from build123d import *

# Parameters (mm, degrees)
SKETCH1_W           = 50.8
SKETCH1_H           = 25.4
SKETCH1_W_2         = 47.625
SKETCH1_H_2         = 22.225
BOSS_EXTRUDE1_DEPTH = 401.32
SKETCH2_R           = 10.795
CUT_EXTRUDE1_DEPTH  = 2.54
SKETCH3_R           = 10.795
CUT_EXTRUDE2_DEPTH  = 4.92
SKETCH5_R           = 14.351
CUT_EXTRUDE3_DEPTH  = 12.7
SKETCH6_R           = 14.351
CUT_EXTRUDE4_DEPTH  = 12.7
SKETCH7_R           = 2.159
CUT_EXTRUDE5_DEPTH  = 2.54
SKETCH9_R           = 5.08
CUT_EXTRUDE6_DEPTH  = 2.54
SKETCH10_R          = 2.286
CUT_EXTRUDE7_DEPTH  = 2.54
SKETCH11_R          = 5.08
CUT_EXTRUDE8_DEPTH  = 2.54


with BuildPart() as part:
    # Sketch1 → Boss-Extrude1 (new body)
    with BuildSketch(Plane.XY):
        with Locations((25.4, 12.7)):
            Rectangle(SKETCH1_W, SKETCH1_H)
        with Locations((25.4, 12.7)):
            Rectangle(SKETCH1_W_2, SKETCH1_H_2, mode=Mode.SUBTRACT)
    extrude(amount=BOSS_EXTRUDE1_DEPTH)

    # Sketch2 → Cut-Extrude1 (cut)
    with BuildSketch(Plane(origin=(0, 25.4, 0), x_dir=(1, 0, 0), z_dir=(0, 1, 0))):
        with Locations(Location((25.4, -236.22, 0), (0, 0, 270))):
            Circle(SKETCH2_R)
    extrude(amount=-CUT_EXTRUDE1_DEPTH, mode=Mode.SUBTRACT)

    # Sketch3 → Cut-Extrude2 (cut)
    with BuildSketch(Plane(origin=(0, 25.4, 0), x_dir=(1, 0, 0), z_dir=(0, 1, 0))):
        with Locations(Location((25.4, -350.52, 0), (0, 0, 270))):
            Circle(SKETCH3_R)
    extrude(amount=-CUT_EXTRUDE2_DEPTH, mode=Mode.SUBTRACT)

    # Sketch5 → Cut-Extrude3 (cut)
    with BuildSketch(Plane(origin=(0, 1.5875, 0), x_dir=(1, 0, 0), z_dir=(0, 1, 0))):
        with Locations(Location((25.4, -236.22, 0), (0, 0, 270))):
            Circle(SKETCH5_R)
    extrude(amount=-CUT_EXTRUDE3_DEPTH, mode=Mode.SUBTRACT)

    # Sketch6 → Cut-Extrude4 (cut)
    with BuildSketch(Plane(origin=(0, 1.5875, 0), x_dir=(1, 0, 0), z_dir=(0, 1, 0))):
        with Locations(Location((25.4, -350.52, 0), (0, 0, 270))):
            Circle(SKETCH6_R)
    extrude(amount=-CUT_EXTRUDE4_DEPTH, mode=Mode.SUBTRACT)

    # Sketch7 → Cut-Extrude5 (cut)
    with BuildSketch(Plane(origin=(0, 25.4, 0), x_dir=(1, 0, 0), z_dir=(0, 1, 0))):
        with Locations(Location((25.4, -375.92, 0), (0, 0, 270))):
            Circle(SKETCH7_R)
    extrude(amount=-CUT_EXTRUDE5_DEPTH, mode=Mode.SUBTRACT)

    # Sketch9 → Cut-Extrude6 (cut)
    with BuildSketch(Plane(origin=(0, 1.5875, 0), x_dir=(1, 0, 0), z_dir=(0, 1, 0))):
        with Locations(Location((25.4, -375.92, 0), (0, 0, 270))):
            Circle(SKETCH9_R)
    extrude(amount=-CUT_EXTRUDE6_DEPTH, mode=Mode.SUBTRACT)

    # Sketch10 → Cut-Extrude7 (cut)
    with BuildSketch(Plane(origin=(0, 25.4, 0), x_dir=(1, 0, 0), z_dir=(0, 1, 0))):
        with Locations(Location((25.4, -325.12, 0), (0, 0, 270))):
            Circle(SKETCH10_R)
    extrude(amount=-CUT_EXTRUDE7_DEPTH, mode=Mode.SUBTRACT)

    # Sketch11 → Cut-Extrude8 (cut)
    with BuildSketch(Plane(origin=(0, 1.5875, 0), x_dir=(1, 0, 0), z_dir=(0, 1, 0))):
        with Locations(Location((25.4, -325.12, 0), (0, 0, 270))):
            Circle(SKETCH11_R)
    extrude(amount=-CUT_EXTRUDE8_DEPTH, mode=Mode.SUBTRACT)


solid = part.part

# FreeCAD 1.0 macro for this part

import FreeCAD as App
import Part
import Sketcher
Q = App.Units.Quantity


def add_polygon(sketch, points):
    """Adds a closed chain of lines whose ends are joined by coincident constraints."""
    first, n = sketch.GeometryCount, len(points)
    for a, b in zip(points, points[1:] + points[:1]):
        sketch.addGeometry(Part.LineSegment(App.Vector(*a, 0), App.Vector(*b, 0)), False)
    for i in range(n):
        sketch.addConstraint(Sketcher.Constraint("Coincident", first + i, 2, first + (i + 1) % n, 1))

doc = App.newDocument("Part")
params = doc.addObject("Spreadsheet::Sheet", "Params")
for row, (alias, value) in enumerate([
    ("sketch1_width", "2 in"),
    ("sketch1_height", "1 in"),
    ("sketch1_width2", "1.875 in"),
    ("sketch1_height2", "0.875 in"),
    ("pad1_length", "15.8 in"),
    ("sketch2_diameter", "0.85 in"),
    ("pocket1_length", "0.1 in"),
    ("sketch3_diameter", "0.85 in"),
    ("pocket2_length", "4.92 mm"),
    ("sketch4_diameter", "1.13 in"),
    ("pocket3_length", "0.5 in"),
    ("sketch5_diameter", "1.13 in"),
    ("pocket4_length", "0.5 in"),
    ("sketch6_diameter", "0.17 in"),
    ("pocket5_length", "0.1 in"),
    ("sketch7_diameter", "0.4 in"),
    ("pocket6_length", "0.1 in"),
    ("sketch8_diameter", "0.18 in"),
    ("pocket7_length", "0.1 in"),
    ("sketch9_diameter", "0.4 in"),
    ("pocket8_length", "0.1 in"),
], start=1):
    params.set(f"A{row}", alias)
    params.set(f"B{row}", "=" + value)
    params.setAlias(f"B{row}", alias)

body = doc.addObject("PartDesign::Body", "Body")

# Sketch on XY plane
sketch1 = body.newObject("Sketcher::SketchObject", "Sketch")
sketch1.AttachmentSupport = (doc.getObject("XY_Plane"), [""])
sketch1.MapMode = "FlatFace"
add_polygon(sketch1, [(0, 25), (0, 0), (51, 0), (51, 25)])  # lines 0-3
add_polygon(sketch1, [(49, 2), (2, 2), (2, 24), (49, 24)])  # lines 4-7
sketch1.addConstraint([
    Sketcher.Constraint("Vertical", 0),
    Sketcher.Constraint("Horizontal", 1),
    Sketcher.Constraint("Vertical", 2),
    Sketcher.Constraint("Horizontal", 3),
    Sketcher.Constraint("Horizontal", 4),
    Sketcher.Constraint("Vertical", 5),
    Sketcher.Constraint("Horizontal", 6),
    Sketcher.Constraint("Vertical", 7),
    Sketcher.Constraint("Coincident", 0, 2, -1, 1),
    Sketcher.Constraint("DistanceX", 1, 1, 1, 2, Q("2 in")),
    Sketcher.Constraint("DistanceY", 0, 2, 0, 1, Q("1 in")),
    Sketcher.Constraint("DistanceX", 4, 2, 4, 1, Q("1.875 in")),
    Sketcher.Constraint("DistanceY", 5, 1, 5, 2, Q("0.875 in")),
    Sketcher.Constraint("DistanceX", -1, 1, 4, 2, Q("0.0625 in")),
    Sketcher.Constraint("DistanceY", -1, 1, 4, 2, Q("0.0625 in")),
])
sketch1.setExpression("Constraints[17]", "Params.sketch1_width")
sketch1.setExpression("Constraints[18]", "Params.sketch1_height")
sketch1.setExpression("Constraints[19]", "Params.sketch1_width2")
sketch1.setExpression("Constraints[20]", "Params.sketch1_height2")
pad1 = body.newObject("PartDesign::Pad", "Pad")
pad1.Profile = sketch1
pad1.setExpression("Length", "Params.pad1_length")

# Sketch on XZ plane
sketch2 = body.newObject("Sketcher::SketchObject", "Sketch001")
sketch2.AttachmentSupport = (doc.getObject("XZ_Plane"), [""])
sketch2.MapMode = "FlatFace"
sketch2.AttachmentOffset = App.Placement(App.Vector(0, 0, -1 * 25.4), App.Rotation())
sketch2.addGeometry(Part.Circle(App.Vector(25, 236, 0), App.Vector(0, 0, 1), 11), False)
sketch2.addConstraint([
    Sketcher.Constraint("Diameter", 0, Q("0.85 in")),
    Sketcher.Constraint("DistanceX", -1, 1, 0, 3, Q("1 in")),
    Sketcher.Constraint("DistanceY", -1, 1, 0, 3, Q("9.3 in")),
])
sketch2.setExpression("Constraints[0]", "Params.sketch2_diameter")
pocket1 = body.newObject("PartDesign::Pocket", "Pocket")
pocket1.Profile = sketch2
pocket1.setExpression("Length", "Params.pocket1_length")
pocket1.Reversed = True

# Sketch on XZ plane
sketch3 = body.newObject("Sketcher::SketchObject", "Sketch002")
sketch3.AttachmentSupport = (doc.getObject("XZ_Plane"), [""])
sketch3.MapMode = "FlatFace"
sketch3.AttachmentOffset = App.Placement(App.Vector(0, 0, -1 * 25.4), App.Rotation())
sketch3.addGeometry(Part.Circle(App.Vector(25, 351, 0), App.Vector(0, 0, 1), 11), False)
sketch3.addConstraint([
    Sketcher.Constraint("Diameter", 0, Q("0.85 in")),
    Sketcher.Constraint("DistanceX", -1, 1, 0, 3, Q("1 in")),
    Sketcher.Constraint("DistanceY", -1, 1, 0, 3, Q("13.8 in")),
])
sketch3.setExpression("Constraints[0]", "Params.sketch3_diameter")
pocket2 = body.newObject("PartDesign::Pocket", "Pocket001")
pocket2.Profile = sketch3
pocket2.setExpression("Length", "Params.pocket2_length")
pocket2.Reversed = True

# Sketch on XZ plane
sketch4 = body.newObject("Sketcher::SketchObject", "Sketch003")
sketch4.AttachmentSupport = (doc.getObject("XZ_Plane"), [""])
sketch4.MapMode = "FlatFace"
sketch4.AttachmentOffset = App.Placement(App.Vector(0, 0, -0.0625 * 25.4), App.Rotation())
sketch4.addGeometry(Part.Circle(App.Vector(25, 236, 0), App.Vector(0, 0, 1), 14), False)
sketch4.addConstraint([
    Sketcher.Constraint("Diameter", 0, Q("1.13 in")),
    Sketcher.Constraint("DistanceX", -1, 1, 0, 3, Q("1 in")),
    Sketcher.Constraint("DistanceY", -1, 1, 0, 3, Q("9.3 in")),
])
sketch4.setExpression("Constraints[0]", "Params.sketch4_diameter")
pocket3 = body.newObject("PartDesign::Pocket", "Pocket002")
pocket3.Profile = sketch4
pocket3.setExpression("Length", "Params.pocket3_length")
pocket3.Reversed = True

# Sketch on XZ plane
sketch5 = body.newObject("Sketcher::SketchObject", "Sketch004")
sketch5.AttachmentSupport = (doc.getObject("XZ_Plane"), [""])
sketch5.MapMode = "FlatFace"
sketch5.AttachmentOffset = App.Placement(App.Vector(0, 0, -0.0625 * 25.4), App.Rotation())
sketch5.addGeometry(Part.Circle(App.Vector(25, 351, 0), App.Vector(0, 0, 1), 14), False)
sketch5.addConstraint([
    Sketcher.Constraint("Diameter", 0, Q("1.13 in")),
    Sketcher.Constraint("DistanceX", -1, 1, 0, 3, Q("1 in")),
    Sketcher.Constraint("DistanceY", -1, 1, 0, 3, Q("13.8 in")),
])
sketch5.setExpression("Constraints[0]", "Params.sketch5_diameter")
pocket4 = body.newObject("PartDesign::Pocket", "Pocket003")
pocket4.Profile = sketch5
pocket4.setExpression("Length", "Params.pocket4_length")
pocket4.Reversed = True

# Sketch on XZ plane
sketch6 = body.newObject("Sketcher::SketchObject", "Sketch005")
sketch6.AttachmentSupport = (doc.getObject("XZ_Plane"), [""])
sketch6.MapMode = "FlatFace"
sketch6.AttachmentOffset = App.Placement(App.Vector(0, 0, -1 * 25.4), App.Rotation())
sketch6.addGeometry(Part.Circle(App.Vector(25.4, 375.9, 0), App.Vector(0, 0, 1), 2.2), False)
sketch6.addConstraint([
    Sketcher.Constraint("Diameter", 0, Q("0.17 in")),
    Sketcher.Constraint("DistanceX", -1, 1, 0, 3, Q("1 in")),
    Sketcher.Constraint("DistanceY", -1, 1, 0, 3, Q("14.8 in")),
])
sketch6.setExpression("Constraints[0]", "Params.sketch6_diameter")
pocket5 = body.newObject("PartDesign::Pocket", "Pocket004")
pocket5.Profile = sketch6
pocket5.setExpression("Length", "Params.pocket5_length")
pocket5.Reversed = True

# Sketch on XZ plane
sketch7 = body.newObject("Sketcher::SketchObject", "Sketch006")
sketch7.AttachmentSupport = (doc.getObject("XZ_Plane"), [""])
sketch7.MapMode = "FlatFace"
sketch7.AttachmentOffset = App.Placement(App.Vector(0, 0, -0.0625 * 25.4), App.Rotation())
sketch7.addGeometry(Part.Circle(App.Vector(25, 376, 0), App.Vector(0, 0, 1), 5), False)
sketch7.addConstraint([
    Sketcher.Constraint("Diameter", 0, Q("0.4 in")),
    Sketcher.Constraint("DistanceX", -1, 1, 0, 3, Q("1 in")),
    Sketcher.Constraint("DistanceY", -1, 1, 0, 3, Q("14.8 in")),
])
sketch7.setExpression("Constraints[0]", "Params.sketch7_diameter")
pocket6 = body.newObject("PartDesign::Pocket", "Pocket005")
pocket6.Profile = sketch7
pocket6.setExpression("Length", "Params.pocket6_length")
pocket6.Reversed = True

# Sketch on XZ plane
sketch8 = body.newObject("Sketcher::SketchObject", "Sketch007")
sketch8.AttachmentSupport = (doc.getObject("XZ_Plane"), [""])
sketch8.MapMode = "FlatFace"
sketch8.AttachmentOffset = App.Placement(App.Vector(0, 0, -1 * 25.4), App.Rotation())
sketch8.addGeometry(Part.Circle(App.Vector(25.4, 325.1, 0), App.Vector(0, 0, 1), 2.3), False)
sketch8.addConstraint([
    Sketcher.Constraint("Diameter", 0, Q("0.18 in")),
    Sketcher.Constraint("DistanceX", -1, 1, 0, 3, Q("1 in")),
    Sketcher.Constraint("DistanceY", -1, 1, 0, 3, Q("12.8 in")),
])
sketch8.setExpression("Constraints[0]", "Params.sketch8_diameter")
pocket7 = body.newObject("PartDesign::Pocket", "Pocket006")
pocket7.Profile = sketch8
pocket7.setExpression("Length", "Params.pocket7_length")
pocket7.Reversed = True

# Sketch on XZ plane
sketch9 = body.newObject("Sketcher::SketchObject", "Sketch008")
sketch9.AttachmentSupport = (doc.getObject("XZ_Plane"), [""])
sketch9.MapMode = "FlatFace"
sketch9.AttachmentOffset = App.Placement(App.Vector(0, 0, -0.0625 * 25.4), App.Rotation())
sketch9.addGeometry(Part.Circle(App.Vector(25, 325, 0), App.Vector(0, 0, 1), 5), False)
sketch9.addConstraint([
    Sketcher.Constraint("Diameter", 0, Q("0.4 in")),
    Sketcher.Constraint("DistanceX", -1, 1, 0, 3, Q("1 in")),
    Sketcher.Constraint("DistanceY", -1, 1, 0, 3, Q("12.8 in")),
])
sketch9.setExpression("Constraints[0]", "Params.sketch9_diameter")
pocket8 = body.newObject("PartDesign::Pocket", "Pocket007")
pocket8.Profile = sketch9
pocket8.setExpression("Length", "Params.pocket8_length")
pocket8.Reversed = True

doc.recompute()
